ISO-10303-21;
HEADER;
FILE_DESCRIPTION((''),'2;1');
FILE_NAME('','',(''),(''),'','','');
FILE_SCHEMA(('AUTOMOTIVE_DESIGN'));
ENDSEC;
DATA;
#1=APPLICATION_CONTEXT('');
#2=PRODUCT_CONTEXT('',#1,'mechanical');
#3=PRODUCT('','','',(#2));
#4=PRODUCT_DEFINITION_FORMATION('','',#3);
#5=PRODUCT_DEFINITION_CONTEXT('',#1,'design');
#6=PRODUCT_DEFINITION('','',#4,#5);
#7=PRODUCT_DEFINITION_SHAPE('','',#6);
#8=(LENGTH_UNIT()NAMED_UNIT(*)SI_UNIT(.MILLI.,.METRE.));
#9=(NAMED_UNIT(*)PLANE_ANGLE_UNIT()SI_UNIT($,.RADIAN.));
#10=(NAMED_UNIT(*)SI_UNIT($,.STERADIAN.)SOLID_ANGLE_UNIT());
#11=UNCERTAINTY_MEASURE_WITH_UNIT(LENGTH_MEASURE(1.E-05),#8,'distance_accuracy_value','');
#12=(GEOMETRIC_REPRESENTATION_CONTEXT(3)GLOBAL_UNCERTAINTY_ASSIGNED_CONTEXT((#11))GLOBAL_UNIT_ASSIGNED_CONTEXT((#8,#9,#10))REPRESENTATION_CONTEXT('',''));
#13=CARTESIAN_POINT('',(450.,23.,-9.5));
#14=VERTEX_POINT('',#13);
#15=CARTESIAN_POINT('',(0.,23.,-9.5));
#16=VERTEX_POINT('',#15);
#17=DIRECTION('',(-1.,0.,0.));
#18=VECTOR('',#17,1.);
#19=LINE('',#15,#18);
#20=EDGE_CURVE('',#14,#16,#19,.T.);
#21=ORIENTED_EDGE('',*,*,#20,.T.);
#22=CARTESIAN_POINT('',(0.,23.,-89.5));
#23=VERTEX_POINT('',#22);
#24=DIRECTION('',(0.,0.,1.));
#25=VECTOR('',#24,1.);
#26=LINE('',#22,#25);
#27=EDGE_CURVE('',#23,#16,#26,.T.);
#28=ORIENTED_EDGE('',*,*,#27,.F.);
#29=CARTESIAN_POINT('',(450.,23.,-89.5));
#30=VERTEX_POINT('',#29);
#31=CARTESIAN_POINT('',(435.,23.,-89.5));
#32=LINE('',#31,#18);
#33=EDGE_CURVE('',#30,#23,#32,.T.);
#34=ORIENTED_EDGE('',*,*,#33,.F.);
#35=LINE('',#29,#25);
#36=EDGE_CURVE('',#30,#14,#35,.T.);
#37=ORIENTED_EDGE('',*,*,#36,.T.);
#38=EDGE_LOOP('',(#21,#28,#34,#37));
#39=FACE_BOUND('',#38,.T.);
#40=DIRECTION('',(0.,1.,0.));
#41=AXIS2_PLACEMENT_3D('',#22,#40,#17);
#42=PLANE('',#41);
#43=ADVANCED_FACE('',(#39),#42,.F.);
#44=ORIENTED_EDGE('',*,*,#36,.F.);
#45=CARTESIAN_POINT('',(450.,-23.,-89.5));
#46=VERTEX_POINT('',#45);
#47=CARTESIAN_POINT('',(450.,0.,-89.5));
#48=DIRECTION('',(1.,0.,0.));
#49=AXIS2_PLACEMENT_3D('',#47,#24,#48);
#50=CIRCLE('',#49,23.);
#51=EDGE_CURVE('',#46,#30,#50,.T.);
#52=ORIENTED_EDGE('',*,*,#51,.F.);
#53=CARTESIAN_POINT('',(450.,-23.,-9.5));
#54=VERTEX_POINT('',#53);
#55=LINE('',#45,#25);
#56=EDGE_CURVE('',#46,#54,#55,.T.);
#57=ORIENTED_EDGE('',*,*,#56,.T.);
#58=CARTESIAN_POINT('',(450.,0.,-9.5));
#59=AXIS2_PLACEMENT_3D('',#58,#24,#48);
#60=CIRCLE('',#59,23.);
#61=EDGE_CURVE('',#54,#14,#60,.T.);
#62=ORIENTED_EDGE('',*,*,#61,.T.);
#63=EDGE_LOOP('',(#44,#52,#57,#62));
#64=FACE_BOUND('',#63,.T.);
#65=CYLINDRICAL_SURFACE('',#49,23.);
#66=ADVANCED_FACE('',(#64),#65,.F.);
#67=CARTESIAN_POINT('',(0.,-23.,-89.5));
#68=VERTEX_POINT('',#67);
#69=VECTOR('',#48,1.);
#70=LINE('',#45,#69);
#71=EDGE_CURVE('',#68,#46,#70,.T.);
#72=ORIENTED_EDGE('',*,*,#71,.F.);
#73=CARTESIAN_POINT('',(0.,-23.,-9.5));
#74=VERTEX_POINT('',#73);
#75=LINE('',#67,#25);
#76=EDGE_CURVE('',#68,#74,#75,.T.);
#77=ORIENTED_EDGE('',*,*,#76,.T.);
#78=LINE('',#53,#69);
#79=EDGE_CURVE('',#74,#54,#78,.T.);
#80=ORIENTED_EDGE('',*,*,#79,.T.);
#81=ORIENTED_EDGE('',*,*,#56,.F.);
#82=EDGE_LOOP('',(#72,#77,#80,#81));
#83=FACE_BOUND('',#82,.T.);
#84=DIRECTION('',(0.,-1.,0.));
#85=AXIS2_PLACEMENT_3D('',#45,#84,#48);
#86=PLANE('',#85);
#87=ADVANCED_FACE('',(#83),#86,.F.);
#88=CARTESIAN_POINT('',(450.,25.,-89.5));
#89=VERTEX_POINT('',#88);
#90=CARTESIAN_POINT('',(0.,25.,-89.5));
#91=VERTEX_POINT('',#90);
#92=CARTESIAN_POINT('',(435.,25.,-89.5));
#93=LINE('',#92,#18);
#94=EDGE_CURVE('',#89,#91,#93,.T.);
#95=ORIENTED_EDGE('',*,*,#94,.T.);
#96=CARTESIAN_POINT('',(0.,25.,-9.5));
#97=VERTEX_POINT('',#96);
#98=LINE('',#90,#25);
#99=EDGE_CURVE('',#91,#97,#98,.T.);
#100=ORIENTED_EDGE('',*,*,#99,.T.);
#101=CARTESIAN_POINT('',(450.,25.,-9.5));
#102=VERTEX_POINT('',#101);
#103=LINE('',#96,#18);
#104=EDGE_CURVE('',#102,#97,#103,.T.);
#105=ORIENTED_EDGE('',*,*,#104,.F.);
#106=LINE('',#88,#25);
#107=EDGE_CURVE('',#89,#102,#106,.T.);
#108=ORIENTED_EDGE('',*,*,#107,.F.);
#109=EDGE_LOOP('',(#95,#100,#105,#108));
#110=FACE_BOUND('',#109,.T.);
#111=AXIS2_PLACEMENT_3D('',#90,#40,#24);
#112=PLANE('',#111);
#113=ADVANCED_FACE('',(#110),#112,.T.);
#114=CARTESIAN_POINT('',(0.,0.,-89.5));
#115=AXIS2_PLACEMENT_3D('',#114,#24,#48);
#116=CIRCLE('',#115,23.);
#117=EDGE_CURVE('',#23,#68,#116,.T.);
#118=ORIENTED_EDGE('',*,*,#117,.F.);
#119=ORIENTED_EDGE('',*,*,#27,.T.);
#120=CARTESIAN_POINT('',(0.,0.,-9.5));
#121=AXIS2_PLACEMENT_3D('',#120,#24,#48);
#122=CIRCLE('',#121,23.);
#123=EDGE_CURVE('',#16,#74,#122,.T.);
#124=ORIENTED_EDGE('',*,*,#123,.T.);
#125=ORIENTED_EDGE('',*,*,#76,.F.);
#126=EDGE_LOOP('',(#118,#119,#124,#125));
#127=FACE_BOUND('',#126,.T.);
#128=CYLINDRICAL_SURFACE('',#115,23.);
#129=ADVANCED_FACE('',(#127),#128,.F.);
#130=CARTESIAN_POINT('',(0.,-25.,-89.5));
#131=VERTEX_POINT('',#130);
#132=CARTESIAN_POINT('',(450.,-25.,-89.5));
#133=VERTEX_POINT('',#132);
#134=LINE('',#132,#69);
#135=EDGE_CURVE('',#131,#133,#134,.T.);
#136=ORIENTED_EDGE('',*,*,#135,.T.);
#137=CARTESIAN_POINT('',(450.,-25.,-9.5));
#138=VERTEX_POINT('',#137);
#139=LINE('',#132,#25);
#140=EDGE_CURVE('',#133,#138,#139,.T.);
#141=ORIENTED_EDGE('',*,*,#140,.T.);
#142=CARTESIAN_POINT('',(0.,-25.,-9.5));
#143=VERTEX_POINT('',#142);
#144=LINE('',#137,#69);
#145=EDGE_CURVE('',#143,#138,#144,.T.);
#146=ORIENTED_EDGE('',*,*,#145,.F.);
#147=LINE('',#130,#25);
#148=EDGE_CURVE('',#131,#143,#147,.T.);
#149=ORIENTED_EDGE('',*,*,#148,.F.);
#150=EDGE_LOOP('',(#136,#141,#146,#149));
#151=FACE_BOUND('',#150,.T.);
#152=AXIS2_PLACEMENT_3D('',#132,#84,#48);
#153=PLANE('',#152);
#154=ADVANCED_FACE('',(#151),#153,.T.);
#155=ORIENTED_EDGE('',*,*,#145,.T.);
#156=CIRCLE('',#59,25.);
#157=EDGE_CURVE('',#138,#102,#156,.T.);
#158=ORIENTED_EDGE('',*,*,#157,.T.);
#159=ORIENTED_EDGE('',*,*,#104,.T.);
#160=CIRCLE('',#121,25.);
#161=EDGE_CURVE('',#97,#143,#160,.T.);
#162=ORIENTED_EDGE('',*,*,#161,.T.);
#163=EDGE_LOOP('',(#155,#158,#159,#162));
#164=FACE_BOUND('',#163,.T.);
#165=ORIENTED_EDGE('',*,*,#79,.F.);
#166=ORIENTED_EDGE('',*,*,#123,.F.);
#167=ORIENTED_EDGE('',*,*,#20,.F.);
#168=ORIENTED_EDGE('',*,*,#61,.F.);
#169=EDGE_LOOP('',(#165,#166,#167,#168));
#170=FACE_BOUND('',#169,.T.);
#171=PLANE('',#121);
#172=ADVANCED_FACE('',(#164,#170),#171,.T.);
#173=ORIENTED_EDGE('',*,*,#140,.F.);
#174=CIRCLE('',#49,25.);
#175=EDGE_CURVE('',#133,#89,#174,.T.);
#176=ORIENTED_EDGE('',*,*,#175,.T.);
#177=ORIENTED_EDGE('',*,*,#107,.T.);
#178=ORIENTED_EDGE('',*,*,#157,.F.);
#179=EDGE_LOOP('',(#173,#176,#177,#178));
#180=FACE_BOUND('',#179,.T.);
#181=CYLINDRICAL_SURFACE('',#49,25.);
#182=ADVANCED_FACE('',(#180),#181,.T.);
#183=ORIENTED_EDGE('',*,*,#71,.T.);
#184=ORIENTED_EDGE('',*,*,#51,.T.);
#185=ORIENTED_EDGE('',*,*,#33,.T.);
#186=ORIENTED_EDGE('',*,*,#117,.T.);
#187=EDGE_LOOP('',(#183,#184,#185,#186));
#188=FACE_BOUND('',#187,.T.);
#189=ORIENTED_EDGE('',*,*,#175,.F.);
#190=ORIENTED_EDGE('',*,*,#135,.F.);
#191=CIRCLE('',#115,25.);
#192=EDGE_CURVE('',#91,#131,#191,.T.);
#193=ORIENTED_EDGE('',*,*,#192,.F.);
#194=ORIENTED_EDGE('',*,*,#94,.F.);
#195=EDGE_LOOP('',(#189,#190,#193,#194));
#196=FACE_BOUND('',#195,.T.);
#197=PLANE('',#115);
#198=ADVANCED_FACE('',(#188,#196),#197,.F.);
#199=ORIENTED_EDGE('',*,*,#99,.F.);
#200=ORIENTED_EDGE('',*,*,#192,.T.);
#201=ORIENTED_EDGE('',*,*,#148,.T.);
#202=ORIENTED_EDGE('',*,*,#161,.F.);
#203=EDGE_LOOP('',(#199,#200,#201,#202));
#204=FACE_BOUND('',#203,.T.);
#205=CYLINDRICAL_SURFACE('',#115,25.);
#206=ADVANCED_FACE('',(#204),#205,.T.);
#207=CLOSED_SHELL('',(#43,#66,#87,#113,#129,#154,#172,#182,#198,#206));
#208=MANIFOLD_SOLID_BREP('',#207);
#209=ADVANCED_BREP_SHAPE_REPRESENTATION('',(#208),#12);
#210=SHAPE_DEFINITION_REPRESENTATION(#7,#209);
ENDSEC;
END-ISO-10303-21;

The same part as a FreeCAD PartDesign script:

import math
import FreeCAD as App
import Part
import Sketcher

doc = App.newDocument("Part")
body = doc.addObject("PartDesign::Body", "Body")

# Sketch on XY plane
sketch1 = body.newObject("Sketcher::SketchObject", "Sketch")
sketch1.AttachmentSupport = (doc.getObject("XY_Plane"), [""])
sketch1.MapMode = "FlatFace"
sketch1.AttachmentOffset = App.Placement(App.Vector(0, 0, -9.5), App.Rotation())
sketch1.addGeometry([
    Part.LineSegment(App.Vector(450, 25, 0), App.Vector(0, 25, 0)),  # 0
    Part.ArcOfCircle(Part.Circle(App.Vector(0, 0, 0), App.Vector(0, 0, 1), 25), math.radians(90), math.radians(270)),  # 1
    Part.LineSegment(App.Vector(0, -25, 0), App.Vector(450, -25, 0)),  # 2
    Part.ArcOfCircle(Part.Circle(App.Vector(450, 0, 0), App.Vector(0, 0, 1), 25), math.radians(-90), math.radians(90)),  # 3
    Part.LineSegment(App.Vector(0, 23, 0), App.Vector(450, 23, 0)),  # 4
    Part.ArcOfCircle(Part.Circle(App.Vector(450, 0, 0), App.Vector(0, 0, 1), 23), math.radians(-90), math.radians(90)),  # 5
    Part.LineSegment(App.Vector(450, -23, 0), App.Vector(0, -23, 0)),  # 6
    Part.ArcOfCircle(Part.Circle(App.Vector(0, 0, 0), App.Vector(0, 0, 1), 23), math.radians(90), math.radians(270)),  # 7
], False)
sketch1.addConstraint([
    Sketcher.Constraint("Tangent", 0, 2, 1, 1),
    Sketcher.Constraint("Tangent", 1, 2, 2, 1),
    Sketcher.Constraint("Tangent", 2, 2, 3, 1),
    Sketcher.Constraint("Tangent", 3, 2, 0, 1),
    Sketcher.Constraint("Tangent", 4, 2, 5, 2),
    Sketcher.Constraint("Tangent", 5, 1, 6, 1),
    Sketcher.Constraint("Tangent", 6, 2, 7, 2),
    Sketcher.Constraint("Tangent", 7, 1, 4, 1),
    Sketcher.Constraint("Horizontal", 0),
    Sketcher.Constraint("Horizontal", 2),
    Sketcher.Constraint("Horizontal", 4),
    Sketcher.Constraint("Horizontal", 6),
    Sketcher.Constraint("Coincident", 1, 3, -1, 1),
    Sketcher.Constraint("Coincident", 7, 3, -1, 1),
    Sketcher.Constraint("Vertical", 5, 3, 2, 2),
    Sketcher.Constraint("Radius", 1, 25.0),
    Sketcher.Constraint("Radius", 5, 23.0),
    Sketcher.Constraint("DistanceX", 0, 2, 0, 1, 450.0),
])
pad1 = body.newObject("PartDesign::Pad", "Pad")
pad1.Profile = sketch1
pad1.Length = 80
pad1.Reversed = True

doc.recompute()
